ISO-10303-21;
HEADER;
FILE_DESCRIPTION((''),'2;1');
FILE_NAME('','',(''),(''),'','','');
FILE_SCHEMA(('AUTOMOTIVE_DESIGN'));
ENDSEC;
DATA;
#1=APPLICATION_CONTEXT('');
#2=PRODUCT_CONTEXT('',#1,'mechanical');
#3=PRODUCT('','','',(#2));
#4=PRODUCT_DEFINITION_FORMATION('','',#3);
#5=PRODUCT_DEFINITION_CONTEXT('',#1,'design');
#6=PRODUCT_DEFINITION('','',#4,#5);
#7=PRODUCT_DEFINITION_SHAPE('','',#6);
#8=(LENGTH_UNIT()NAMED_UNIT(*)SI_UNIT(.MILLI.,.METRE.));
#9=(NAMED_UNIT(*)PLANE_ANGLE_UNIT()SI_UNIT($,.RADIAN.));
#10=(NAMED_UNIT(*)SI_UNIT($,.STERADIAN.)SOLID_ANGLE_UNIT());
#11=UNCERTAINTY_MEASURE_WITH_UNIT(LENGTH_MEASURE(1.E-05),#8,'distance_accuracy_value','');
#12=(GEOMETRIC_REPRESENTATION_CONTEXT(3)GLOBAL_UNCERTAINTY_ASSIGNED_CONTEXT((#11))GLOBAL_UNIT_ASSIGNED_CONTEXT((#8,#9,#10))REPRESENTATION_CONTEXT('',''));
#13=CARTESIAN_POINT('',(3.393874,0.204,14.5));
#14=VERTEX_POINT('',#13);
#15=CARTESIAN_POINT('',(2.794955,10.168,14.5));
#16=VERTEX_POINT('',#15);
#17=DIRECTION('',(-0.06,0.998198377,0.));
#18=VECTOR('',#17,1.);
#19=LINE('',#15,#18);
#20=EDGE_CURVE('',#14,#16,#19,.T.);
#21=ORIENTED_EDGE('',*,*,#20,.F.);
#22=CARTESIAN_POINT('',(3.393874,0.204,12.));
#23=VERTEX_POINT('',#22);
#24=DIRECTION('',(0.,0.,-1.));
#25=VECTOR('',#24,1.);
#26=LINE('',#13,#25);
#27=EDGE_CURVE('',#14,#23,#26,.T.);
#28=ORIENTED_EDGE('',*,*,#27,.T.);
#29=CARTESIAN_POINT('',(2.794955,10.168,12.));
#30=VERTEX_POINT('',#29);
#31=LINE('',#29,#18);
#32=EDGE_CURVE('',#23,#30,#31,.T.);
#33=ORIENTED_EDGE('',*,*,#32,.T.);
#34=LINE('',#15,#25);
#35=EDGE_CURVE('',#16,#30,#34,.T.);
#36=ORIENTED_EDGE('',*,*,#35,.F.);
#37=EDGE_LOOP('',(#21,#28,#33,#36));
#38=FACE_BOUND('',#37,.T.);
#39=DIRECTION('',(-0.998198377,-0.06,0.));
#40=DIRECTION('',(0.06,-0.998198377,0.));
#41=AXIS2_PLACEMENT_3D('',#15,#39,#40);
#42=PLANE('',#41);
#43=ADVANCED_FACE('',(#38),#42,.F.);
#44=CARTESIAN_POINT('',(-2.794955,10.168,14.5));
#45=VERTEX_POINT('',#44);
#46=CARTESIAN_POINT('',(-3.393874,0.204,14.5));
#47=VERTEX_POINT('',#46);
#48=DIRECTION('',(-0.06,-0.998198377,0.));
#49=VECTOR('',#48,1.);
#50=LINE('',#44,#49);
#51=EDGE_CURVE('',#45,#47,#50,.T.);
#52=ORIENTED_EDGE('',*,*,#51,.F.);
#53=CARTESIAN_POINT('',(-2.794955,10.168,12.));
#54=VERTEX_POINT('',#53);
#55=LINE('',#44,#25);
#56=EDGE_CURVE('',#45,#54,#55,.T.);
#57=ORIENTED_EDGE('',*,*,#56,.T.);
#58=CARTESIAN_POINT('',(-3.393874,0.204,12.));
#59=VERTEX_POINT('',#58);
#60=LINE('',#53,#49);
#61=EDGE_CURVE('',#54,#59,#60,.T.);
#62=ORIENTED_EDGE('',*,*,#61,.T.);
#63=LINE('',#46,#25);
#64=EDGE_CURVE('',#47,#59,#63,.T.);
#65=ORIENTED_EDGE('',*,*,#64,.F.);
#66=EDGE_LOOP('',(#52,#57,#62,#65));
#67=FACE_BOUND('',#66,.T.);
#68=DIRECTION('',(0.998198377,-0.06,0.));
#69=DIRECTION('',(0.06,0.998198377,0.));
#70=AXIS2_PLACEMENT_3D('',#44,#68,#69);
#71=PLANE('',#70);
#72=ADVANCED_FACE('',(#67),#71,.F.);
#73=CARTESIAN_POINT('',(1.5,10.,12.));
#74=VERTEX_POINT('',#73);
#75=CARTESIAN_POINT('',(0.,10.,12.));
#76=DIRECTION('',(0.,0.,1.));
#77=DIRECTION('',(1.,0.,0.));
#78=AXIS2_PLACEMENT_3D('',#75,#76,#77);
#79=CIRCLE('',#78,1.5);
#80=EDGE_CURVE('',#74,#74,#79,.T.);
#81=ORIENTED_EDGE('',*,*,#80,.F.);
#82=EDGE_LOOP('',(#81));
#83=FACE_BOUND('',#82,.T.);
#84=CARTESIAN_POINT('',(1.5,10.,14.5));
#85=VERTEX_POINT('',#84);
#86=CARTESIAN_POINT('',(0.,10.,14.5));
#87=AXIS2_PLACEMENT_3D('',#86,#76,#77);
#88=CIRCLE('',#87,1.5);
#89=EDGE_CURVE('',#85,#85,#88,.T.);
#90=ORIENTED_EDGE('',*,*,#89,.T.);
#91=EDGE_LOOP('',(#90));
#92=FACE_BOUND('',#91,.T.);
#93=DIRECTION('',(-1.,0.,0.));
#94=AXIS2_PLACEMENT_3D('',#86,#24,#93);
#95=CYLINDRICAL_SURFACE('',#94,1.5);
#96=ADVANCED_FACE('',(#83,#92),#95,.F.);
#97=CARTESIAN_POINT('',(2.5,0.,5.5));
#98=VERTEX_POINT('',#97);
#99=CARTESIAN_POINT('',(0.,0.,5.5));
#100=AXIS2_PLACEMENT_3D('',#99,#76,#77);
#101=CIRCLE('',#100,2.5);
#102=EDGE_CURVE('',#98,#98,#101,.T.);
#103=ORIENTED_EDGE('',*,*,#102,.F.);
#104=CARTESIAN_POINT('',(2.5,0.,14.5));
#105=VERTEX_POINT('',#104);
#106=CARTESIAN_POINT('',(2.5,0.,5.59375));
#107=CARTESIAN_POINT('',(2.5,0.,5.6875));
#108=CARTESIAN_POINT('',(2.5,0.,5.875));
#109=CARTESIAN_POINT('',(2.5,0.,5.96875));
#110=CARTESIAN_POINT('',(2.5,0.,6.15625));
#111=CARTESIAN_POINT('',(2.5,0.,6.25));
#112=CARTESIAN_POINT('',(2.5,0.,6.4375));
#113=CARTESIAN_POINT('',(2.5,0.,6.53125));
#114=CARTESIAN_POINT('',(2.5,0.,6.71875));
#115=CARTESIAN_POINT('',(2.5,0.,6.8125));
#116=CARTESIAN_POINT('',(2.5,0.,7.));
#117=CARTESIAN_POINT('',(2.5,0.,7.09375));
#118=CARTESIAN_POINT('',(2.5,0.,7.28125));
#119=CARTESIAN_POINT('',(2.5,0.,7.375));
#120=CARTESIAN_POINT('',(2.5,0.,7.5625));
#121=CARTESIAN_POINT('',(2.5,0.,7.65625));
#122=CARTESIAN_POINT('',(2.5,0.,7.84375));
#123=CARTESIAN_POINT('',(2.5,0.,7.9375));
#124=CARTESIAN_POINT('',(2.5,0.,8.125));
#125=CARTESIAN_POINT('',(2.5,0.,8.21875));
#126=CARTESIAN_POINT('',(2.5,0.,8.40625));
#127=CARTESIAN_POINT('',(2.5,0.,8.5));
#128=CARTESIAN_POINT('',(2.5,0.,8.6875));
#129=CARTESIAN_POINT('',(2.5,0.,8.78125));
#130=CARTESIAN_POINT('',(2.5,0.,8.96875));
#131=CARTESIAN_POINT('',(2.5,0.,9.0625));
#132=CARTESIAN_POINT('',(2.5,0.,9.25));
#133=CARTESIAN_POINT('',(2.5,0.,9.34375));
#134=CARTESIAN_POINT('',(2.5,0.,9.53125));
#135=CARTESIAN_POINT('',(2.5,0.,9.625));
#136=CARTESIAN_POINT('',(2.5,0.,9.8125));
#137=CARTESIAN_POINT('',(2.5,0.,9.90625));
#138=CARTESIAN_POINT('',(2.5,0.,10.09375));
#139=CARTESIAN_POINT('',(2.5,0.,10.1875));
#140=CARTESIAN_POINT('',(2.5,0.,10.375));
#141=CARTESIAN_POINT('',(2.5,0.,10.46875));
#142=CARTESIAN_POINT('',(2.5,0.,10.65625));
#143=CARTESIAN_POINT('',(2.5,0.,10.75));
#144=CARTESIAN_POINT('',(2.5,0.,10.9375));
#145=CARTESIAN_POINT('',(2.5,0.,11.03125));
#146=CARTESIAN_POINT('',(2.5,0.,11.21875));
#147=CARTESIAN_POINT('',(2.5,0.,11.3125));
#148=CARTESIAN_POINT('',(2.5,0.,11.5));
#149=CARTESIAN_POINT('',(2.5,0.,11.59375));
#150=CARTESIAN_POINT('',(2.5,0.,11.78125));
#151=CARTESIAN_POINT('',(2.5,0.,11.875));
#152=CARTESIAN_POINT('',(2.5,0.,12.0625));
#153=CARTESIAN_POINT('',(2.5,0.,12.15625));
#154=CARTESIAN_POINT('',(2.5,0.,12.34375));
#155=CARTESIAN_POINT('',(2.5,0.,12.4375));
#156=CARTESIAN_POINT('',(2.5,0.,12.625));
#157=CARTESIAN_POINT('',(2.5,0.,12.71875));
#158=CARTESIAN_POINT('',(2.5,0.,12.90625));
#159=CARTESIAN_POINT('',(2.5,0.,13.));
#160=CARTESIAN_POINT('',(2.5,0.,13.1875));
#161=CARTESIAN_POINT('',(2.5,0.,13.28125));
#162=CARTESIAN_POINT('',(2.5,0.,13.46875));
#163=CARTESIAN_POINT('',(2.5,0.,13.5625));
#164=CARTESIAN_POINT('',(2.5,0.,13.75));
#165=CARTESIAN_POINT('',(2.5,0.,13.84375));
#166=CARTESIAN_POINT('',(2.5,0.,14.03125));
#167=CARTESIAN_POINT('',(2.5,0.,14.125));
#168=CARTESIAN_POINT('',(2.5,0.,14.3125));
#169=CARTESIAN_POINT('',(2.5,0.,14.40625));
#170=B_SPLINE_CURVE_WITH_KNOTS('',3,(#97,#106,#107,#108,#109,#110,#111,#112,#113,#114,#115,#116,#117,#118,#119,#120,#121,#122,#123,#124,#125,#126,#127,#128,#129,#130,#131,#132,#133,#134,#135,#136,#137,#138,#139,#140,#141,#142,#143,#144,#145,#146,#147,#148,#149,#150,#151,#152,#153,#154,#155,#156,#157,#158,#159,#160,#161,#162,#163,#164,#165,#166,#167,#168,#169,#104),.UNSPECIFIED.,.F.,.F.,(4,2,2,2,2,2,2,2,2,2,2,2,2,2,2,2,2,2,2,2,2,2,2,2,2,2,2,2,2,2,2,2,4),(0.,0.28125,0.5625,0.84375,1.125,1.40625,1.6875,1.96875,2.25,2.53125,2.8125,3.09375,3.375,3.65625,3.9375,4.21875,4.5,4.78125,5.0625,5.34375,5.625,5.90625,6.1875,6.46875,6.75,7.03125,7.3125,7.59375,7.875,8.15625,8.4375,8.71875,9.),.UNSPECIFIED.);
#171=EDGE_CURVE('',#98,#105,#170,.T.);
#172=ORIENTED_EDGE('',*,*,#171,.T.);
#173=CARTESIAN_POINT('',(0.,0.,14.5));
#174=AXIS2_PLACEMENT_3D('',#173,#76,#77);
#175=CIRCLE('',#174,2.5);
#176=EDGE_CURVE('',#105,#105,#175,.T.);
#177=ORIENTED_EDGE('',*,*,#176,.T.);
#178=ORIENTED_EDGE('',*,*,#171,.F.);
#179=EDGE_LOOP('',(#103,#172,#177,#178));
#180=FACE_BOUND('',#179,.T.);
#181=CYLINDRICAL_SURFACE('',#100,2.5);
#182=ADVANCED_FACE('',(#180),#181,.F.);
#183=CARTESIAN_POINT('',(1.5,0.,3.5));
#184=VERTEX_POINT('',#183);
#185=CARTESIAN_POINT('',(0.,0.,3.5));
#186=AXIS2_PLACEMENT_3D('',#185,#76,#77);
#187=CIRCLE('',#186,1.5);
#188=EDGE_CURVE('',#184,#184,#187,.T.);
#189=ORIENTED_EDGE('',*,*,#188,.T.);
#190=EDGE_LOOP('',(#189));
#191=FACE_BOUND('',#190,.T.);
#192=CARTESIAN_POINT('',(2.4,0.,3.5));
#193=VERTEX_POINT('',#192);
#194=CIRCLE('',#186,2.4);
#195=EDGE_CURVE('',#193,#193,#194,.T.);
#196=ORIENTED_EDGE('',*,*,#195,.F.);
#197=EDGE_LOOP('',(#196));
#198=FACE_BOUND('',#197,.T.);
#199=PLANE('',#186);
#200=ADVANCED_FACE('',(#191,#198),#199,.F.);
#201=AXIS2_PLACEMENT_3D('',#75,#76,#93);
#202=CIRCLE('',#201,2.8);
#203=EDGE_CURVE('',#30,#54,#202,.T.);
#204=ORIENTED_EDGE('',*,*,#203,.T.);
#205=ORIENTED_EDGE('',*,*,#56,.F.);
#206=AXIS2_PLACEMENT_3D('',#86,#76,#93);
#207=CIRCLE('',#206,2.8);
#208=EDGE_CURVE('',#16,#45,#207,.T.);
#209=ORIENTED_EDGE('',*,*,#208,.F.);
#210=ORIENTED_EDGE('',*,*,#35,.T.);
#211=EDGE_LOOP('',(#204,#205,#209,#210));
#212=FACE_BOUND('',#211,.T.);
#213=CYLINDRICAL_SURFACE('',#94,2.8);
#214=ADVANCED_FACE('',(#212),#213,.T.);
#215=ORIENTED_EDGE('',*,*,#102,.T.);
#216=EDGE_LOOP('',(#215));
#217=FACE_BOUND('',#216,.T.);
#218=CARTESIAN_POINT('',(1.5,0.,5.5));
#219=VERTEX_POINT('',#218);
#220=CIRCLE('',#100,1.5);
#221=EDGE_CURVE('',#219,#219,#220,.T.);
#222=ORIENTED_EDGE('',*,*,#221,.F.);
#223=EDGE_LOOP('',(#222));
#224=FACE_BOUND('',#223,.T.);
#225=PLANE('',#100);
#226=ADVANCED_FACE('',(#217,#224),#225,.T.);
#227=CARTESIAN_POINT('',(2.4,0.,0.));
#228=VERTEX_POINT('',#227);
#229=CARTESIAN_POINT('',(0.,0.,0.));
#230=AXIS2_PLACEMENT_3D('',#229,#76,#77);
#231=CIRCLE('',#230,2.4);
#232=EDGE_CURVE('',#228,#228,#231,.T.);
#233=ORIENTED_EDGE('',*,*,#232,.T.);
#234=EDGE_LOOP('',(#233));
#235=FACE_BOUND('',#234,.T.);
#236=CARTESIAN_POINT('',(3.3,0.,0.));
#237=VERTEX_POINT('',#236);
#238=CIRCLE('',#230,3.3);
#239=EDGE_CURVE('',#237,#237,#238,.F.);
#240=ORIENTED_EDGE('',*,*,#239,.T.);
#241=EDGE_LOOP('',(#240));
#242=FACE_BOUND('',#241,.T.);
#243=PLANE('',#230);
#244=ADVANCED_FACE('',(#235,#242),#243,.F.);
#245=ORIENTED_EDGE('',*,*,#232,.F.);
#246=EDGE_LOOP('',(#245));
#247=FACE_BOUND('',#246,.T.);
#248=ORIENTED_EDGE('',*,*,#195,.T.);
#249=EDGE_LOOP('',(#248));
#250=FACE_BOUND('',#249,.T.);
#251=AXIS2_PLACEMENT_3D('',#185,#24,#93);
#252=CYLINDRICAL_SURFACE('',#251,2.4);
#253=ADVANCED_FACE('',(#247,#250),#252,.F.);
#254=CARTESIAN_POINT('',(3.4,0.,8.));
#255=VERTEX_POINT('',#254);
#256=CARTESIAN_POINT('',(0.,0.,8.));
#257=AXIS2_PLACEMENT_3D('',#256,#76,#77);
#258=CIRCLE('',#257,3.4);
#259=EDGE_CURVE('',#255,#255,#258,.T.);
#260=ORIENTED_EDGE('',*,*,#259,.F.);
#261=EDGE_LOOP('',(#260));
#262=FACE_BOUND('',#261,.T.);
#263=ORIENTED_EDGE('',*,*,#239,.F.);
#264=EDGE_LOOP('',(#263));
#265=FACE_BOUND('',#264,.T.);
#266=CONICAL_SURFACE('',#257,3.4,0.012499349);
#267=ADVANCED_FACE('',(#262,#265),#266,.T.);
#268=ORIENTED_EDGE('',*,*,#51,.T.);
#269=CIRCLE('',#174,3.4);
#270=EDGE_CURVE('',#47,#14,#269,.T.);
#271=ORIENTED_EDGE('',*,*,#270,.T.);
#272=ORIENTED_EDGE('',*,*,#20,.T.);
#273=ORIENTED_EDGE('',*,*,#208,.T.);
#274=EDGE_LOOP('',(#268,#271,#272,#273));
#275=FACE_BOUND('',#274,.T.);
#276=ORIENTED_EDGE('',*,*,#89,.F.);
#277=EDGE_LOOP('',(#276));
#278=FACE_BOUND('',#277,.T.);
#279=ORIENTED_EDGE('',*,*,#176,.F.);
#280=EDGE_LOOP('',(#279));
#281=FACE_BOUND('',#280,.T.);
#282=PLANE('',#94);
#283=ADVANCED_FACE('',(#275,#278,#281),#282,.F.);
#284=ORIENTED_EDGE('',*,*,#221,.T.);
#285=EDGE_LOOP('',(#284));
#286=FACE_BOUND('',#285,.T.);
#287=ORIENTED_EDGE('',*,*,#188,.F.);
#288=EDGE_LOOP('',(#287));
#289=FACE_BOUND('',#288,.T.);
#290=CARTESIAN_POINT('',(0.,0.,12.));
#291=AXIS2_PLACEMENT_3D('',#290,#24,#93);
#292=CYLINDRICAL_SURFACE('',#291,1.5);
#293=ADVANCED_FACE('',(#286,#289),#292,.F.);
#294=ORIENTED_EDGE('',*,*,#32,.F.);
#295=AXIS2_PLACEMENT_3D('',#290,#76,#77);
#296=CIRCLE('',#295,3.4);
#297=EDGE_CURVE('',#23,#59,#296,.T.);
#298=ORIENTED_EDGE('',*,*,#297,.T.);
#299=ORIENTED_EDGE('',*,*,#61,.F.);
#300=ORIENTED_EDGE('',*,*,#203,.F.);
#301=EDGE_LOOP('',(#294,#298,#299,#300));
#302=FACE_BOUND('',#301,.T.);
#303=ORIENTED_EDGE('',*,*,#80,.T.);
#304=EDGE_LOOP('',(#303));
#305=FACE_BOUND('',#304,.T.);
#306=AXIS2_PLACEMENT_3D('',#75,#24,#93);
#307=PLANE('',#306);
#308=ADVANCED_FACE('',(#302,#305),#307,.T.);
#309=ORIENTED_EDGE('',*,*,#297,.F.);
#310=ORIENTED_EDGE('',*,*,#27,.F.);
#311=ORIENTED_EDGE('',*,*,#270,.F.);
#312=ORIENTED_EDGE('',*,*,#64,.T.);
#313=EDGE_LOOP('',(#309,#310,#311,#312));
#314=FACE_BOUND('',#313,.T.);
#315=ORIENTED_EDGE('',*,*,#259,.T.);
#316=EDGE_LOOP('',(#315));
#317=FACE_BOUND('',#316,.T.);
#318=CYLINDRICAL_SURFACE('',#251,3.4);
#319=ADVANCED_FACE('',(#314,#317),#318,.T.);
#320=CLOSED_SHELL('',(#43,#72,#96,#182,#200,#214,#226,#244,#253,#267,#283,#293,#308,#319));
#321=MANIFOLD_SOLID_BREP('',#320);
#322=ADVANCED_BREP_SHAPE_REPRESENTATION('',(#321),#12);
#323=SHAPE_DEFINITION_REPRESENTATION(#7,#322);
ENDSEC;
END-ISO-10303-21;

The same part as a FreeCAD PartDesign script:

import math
import FreeCAD as App
import Part
import Sketcher

V = App.Vector


def edges_at(feature, points):
    """Names of the edges that pass closest to the given points."""
    edges = feature.Shape.Edges
    near = lambda p: min(range(len(edges)), key=lambda i: edges[i].distToShape(Part.Vertex(*p))[0])
    return sorted({f"Edge{near(p) + 1}" for p in points})

doc = App.newDocument("Part")
params = doc.addObject("Spreadsheet::Sheet", "Params")
for row, (alias, value) in enumerate([
    ("sketch1_diameter", "6.8 mm"),
    ("sketch1_diameter2", "4.8 mm"),
    ("pad1_length", "3.5 mm"),
    ("sketch2_diameter", "3 mm"),
    ("sketch2_diameter2", "6.8 mm"),
    ("pad2_length", "8.5 mm"),
    ("sketch3_diameter", "5 mm"),
    ("sketch3_diameter2", "3 mm"),
    ("pocket1_length", "6.5 mm"),
    ("sketch4_diameter", "5 mm"),
    ("sketch4_diameter2", "3 mm"),
    ("sketch4_radius", "3.4 mm"),
    ("sketch4_radius2", "2.8 mm"),
    ("pad3_length", "2.5 mm"),
    ("chamfer_size", "0.1 mm"),
    ("chamfer_size2", "8 mm"),
], start=1):
    params.set(f"A{row}", alias)
    params.set(f"B{row}", "=" + value)
    params.setAlias(f"B{row}", alias)

body = doc.addObject("PartDesign::Body", "Body")

sketch1 = body.newObject("Sketcher::SketchObject", "Sketch")
sketch1.AttachmentSupport = (doc.getObject("XY_Plane"), [""])
sketch1.MapMode = "FlatFace"
sketch1.addGeometry([
    Part.Circle(V(0, 0, 0), V(0, 0, 1), 3.4),
    Part.Circle(V(0, 0, 0), V(0, 0, 1), 2.4),
], False)
sketch1.addConstraint([
    Sketcher.Constraint("Coincident", 0, 3, -1, 1),
    Sketcher.Constraint("Coincident", 1, 3, -1, 1),
    Sketcher.Constraint("Diameter", 0, 6.8),
    Sketcher.Constraint("Diameter", 1, 4.8),
])
sketch1.setExpression("Constraints[2]", "Params.sketch1_diameter")
sketch1.setExpression("Constraints[3]", "Params.sketch1_diameter2")
pad1 = body.newObject("PartDesign::Pad", "Pad")
pad1.Profile = sketch1
pad1.setExpression("Length", "Params.pad1_length")

sketch2 = body.newObject("Sketcher::SketchObject", "Sketch001")
sketch2.AttachmentSupport = (doc.getObject("XY_Plane"), [""])
sketch2.MapMode = "FlatFace"
sketch2.AttachmentOffset = App.Placement(V(0, 0, 3.5), App.Rotation())
sketch2.addGeometry([
    Part.Circle(V(0, 0, 0), V(0, 0, 1), 3.4),
    Part.Circle(V(0, 0, 0), V(0, 0, 1), 1.5),
], False)
sketch2.addConstraint([
    Sketcher.Constraint("Coincident", 0, 3, -1, 1),
    Sketcher.Constraint("Coincident", 1, 3, -1, 1),
    Sketcher.Constraint("Diameter", 1, 3.0),
    Sketcher.Constraint("Diameter", 0, 6.8),
])
sketch2.setExpression("Constraints[2]", "Params.sketch2_diameter")
sketch2.setExpression("Constraints[3]", "Params.sketch2_diameter2")
pad2 = body.newObject("PartDesign::Pad", "Pad001")
pad2.Profile = sketch2
pad2.setExpression("Length", "Params.pad2_length")

sketch3 = body.newObject("Sketcher::SketchObject", "Sketch002")
sketch3.AttachmentSupport = (doc.getObject("XY_Plane"), [""])
sketch3.MapMode = "FlatFace"
sketch3.AttachmentOffset = App.Placement(V(0, 0, 5.5), App.Rotation())
sketch3.addGeometry([
    Part.Circle(V(0, 0, 0), V(0, 0, 1), 2.5),
    Part.Circle(V(0, 0, 0), V(0, 0, 1), 1.5),
], False)
sketch3.addConstraint([
    Sketcher.Constraint("Coincident", 0, 3, -1, 1),
    Sketcher.Constraint("Coincident", 1, 3, -1, 1),
    Sketcher.Constraint("Diameter", 0, 5.0),
    Sketcher.Constraint("Diameter", 1, 3.0),
])
sketch3.setExpression("Constraints[2]", "Params.sketch3_diameter")
sketch3.setExpression("Constraints[3]", "Params.sketch3_diameter2")
pocket1 = body.newObject("PartDesign::Pocket", "Pocket")
pocket1.Profile = sketch3
pocket1.setExpression("Length", "Params.pocket1_length")
pocket1.Reversed = True

sketch4 = body.newObject("Sketcher::SketchObject", "Sketch003")
sketch4.AttachmentSupport = (doc.getObject("XY_Plane"), [""])
sketch4.MapMode = "FlatFace"
sketch4.AttachmentOffset = App.Placement(V(0, 0, 12), App.Rotation())
sketch4.addGeometry([
    Part.LineSegment(V(-2.8, 10.2, 0), V(-3.4, 0.2, 0)),
    Part.ArcOfCircle(Part.Circle(V(0, 0, 0), V(0, 0, 1), 3.4), math.radians(177), math.radians(363)),
    Part.LineSegment(V(3.4, 0.2, 0), V(2.8, 10.2, 0)),
    Part.ArcOfCircle(Part.Circle(V(0, 10, 0), V(0, 0, 1), 2.8), math.radians(3), math.radians(177)),
    Part.Circle(V(0, 0, 0), V(0, 0, 1), 2.5),
    Part.Circle(V(0, 10, 0), V(0, 0, 1), 1.5),
], False)
sketch4.addConstraint([
    Sketcher.Constraint("Tangent", 0, 2, 1, 1),
    Sketcher.Constraint("Tangent", 1, 2, 2, 1),
    Sketcher.Constraint("Tangent", 2, 2, 3, 1),
    Sketcher.Constraint("Tangent", 3, 2, 0, 1),
    Sketcher.Constraint("Coincident", 1, 3, -1, 1),
    Sketcher.Constraint("Coincident", 4, 3, -1, 1),
    Sketcher.Constraint("Coincident", 5, 3, 3, 3),
    Sketcher.Constraint("PointOnObject", 3, 3, -2),
    Sketcher.Constraint("Diameter", 4, 5.0),
    Sketcher.Constraint("Diameter", 5, 3.0),
    Sketcher.Constraint("Radius", 1, 3.4),
    Sketcher.Constraint("Radius", 3, 2.8),
    Sketcher.Constraint("DistanceY", -1, 1, 3, 3, 10.0),
])
sketch4.setExpression("Constraints[8]", "Params.sketch4_diameter")
sketch4.setExpression("Constraints[9]", "Params.sketch4_diameter2")
sketch4.setExpression("Constraints[10]", "Params.sketch4_radius")
sketch4.setExpression("Constraints[11]", "Params.sketch4_radius2")
pad3 = body.newObject("PartDesign::Pad", "Pad002")
pad3.Profile = sketch4
pad3.setExpression("Length", "Params.pad3_length")
doc.recompute()

chamfer = body.newObject("PartDesign::Chamfer", "Chamfer")
chamfer.Base = (pad3, edges_at(pad3, [(-3.4, 0, 0)]))
chamfer.ChamferType = "Two distances"
chamfer.setExpression("Size", "Params.chamfer_size")
chamfer.setExpression("Size2", "Params.chamfer_size2")
chamfer.FlipDirection = True

doc.recompute()
